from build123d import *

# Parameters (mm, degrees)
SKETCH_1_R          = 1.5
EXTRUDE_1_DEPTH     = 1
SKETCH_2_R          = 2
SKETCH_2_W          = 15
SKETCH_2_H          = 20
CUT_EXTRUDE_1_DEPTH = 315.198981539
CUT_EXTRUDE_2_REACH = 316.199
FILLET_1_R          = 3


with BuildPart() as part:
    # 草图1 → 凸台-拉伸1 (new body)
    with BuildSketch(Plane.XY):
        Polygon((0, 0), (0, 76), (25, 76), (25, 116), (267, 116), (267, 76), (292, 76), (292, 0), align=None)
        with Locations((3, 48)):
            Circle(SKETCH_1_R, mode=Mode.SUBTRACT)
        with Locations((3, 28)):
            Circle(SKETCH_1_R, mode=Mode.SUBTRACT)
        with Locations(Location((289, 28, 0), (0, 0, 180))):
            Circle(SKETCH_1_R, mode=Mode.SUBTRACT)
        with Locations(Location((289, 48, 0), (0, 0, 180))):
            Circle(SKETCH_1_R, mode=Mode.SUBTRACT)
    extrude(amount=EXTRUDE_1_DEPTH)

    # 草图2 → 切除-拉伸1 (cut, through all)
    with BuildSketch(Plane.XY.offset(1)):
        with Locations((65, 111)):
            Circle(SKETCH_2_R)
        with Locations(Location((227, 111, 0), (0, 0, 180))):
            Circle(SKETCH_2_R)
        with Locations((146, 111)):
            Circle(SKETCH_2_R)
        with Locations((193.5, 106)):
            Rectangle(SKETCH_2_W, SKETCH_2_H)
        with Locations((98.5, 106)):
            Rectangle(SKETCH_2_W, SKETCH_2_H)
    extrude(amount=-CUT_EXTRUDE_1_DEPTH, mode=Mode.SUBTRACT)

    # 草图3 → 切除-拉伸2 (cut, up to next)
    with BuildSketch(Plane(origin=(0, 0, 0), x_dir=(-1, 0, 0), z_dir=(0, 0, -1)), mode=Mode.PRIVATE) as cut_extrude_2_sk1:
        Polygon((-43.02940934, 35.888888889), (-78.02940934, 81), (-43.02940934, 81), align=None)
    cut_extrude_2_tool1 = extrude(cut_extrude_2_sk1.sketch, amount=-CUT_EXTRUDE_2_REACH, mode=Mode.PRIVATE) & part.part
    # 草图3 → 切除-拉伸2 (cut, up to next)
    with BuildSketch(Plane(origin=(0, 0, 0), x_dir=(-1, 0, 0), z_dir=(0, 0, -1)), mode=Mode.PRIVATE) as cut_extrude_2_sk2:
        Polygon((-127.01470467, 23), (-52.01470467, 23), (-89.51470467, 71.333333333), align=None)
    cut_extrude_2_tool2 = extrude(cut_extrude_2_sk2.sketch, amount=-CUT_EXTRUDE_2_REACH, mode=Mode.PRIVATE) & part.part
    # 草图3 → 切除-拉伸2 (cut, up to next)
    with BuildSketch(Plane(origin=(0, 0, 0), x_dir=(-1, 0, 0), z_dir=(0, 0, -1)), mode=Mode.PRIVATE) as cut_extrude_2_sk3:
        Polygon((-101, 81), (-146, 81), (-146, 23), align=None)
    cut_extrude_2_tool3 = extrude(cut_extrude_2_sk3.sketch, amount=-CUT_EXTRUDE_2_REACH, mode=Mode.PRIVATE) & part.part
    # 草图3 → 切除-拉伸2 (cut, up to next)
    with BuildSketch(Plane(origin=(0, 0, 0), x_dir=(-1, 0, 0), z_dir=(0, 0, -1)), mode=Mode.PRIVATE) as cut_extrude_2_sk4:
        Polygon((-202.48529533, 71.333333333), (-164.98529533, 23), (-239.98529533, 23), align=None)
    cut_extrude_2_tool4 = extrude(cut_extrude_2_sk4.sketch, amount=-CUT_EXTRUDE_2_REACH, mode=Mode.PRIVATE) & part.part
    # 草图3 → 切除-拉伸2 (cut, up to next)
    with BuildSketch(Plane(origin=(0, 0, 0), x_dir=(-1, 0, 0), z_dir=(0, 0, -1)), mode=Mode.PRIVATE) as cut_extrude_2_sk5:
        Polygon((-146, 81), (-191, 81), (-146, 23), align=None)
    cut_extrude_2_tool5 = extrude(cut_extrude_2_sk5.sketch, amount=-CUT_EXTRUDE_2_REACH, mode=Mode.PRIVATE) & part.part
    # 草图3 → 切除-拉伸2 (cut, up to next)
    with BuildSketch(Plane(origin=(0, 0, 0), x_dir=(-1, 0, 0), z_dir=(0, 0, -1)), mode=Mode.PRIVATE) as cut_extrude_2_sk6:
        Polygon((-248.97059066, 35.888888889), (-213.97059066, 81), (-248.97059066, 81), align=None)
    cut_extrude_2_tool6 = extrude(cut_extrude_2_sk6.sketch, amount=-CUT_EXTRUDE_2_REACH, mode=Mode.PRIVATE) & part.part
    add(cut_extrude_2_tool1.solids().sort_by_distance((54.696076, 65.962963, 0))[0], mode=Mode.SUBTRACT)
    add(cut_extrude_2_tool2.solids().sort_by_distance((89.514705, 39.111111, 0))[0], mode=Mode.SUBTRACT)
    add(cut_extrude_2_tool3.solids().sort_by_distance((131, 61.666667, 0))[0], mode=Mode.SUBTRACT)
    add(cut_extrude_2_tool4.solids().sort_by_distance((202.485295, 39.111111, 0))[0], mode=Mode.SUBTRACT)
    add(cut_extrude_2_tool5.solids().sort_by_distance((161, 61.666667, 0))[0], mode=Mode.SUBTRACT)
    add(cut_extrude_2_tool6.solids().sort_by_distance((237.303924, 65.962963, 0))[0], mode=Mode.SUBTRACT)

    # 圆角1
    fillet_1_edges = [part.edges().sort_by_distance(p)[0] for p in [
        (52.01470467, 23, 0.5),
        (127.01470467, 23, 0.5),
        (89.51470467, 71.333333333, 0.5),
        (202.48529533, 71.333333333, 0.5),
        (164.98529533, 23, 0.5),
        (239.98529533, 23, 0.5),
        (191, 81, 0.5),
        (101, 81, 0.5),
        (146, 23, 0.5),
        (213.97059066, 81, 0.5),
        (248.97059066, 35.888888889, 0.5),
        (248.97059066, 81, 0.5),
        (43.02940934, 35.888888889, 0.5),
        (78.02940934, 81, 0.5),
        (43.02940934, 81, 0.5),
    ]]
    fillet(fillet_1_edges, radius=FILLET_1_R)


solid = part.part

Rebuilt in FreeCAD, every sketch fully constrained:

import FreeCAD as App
import Part
import Sketcher

V = App.Vector
Q = App.Units.Quantity


def edges_at(feature, points):
    """Names of the edges that pass closest to the given points."""
    edges = feature.Shape.Edges
    near = lambda p: min(range(len(edges)), key=lambda i: edges[i].distToShape(Part.Vertex(*p))[0])
    return sorted({f"Edge{near(p) + 1}" for p in points})


def add_polygon(sketch, points):
    """Adds a closed chain of lines whose ends are joined by coincident constraints."""
    first, n = sketch.GeometryCount, len(points)
    for a, b in zip(points, points[1:] + points[:1]):
        sketch.addGeometry(Part.LineSegment(App.Vector(*a, 0), App.Vector(*b, 0)), False)
    for i in range(n):
        sketch.addConstraint(Sketcher.Constraint("Coincident", first + i, 2, first + (i + 1) % n, 1))

doc = App.newDocument("Part")
body = doc.addObject("PartDesign::Body", "Body")

# Sketch on XY plane
sketch1 = doc.addObject("Sketcher::SketchObject", "Sketch")
body.addObject(sketch1)
sketch1.AttachmentSupport = (doc.XY_Plane, [""])
sketch1.MapMode = "FlatFace"
add_polygon(sketch1, [(0, 76), (0, 0), (292, 0), (292, 76), (267, 76), (267, 116), (25, 116), (25, 76)])  # lines 0-7
sketch1.addGeometry(Part.Circle(V(289, 28, 0), V(0, 0, 1), 1.5), False)  # 8
sketch1.addGeometry(Part.Circle(V(3, 28, 0), V(0, 0, 1), 1.5), False)  # 9
sketch1.addGeometry(Part.Circle(V(289, 48, 0), V(0, 0, 1), 1.5), False)  # 10
sketch1.addGeometry(Part.Circle(V(3, 48, 0), V(0, 0, 1), 1.5), False)  # 11
sketch1.addConstraint(Sketcher.Constraint("Vertical", 0))
sketch1.addConstraint(Sketcher.Constraint("Horizontal", 1))
sketch1.addConstraint(Sketcher.Constraint("Vertical", 2))
sketch1.addConstraint(Sketcher.Constraint("Horizontal", 3))
sketch1.addConstraint(Sketcher.Constraint("Vertical", 4))
sketch1.addConstraint(Sketcher.Constraint("Horizontal", 5))
sketch1.addConstraint(Sketcher.Constraint("Vertical", 6))
sketch1.addConstraint(Sketcher.Constraint("Horizontal", 7))
sketch1.addConstraint(Sketcher.Constraint("Coincident", 0, 2, -1, 1))
sketch1.addConstraint(Sketcher.Constraint("Equal", 8, 9))
sketch1.addConstraint(Sketcher.Constraint("Equal", 9, 10))
sketch1.addConstraint(Sketcher.Constraint("Equal", 10, 11))
sketch1.addConstraint(Sketcher.Constraint("Horizontal", 8, 3, 9, 3))
sketch1.addConstraint(Sketcher.Constraint("Horizontal", 10, 3, 11, 3))
sketch1.addConstraint(Sketcher.Constraint("Horizontal", 3, 2, 6, 2))
sketch1.addConstraint(Sketcher.Constraint("Vertical", 8, 3, 10, 3))
sketch1.addConstraint(Sketcher.Constraint("Vertical", 9, 3, 11, 3))
sketch1.addConstraint(Sketcher.Constraint("Equal", 3, 7))
sketch1.addConstraint(Sketcher.Constraint("Diameter", 8, Q("3 mm")))
sketch1.addConstraint(Sketcher.Constraint("DistanceX", 1, 1, 1, 2, Q("292 mm")))
sketch1.addConstraint(Sketcher.Constraint("DistanceX", 3, 2, 3, 1, Q("25 mm")))
sketch1.addConstraint(Sketcher.Constraint("DistanceY", 0, 2, 0, 1, Q("76 mm")))
sketch1.addConstraint(Sketcher.Constraint("DistanceY", 4, 1, 4, 2, Q("40 mm")))
sketch1.addConstraint(Sketcher.Constraint("DistanceX", -1, 1, 8, 3, Q("289 mm")))
sketch1.addConstraint(Sketcher.Constraint("DistanceY", -1, 1, 8, 3, Q("28 mm")))
sketch1.addConstraint(Sketcher.Constraint("DistanceX", -1, 1, 9, 3, Q("3 mm")))
sketch1.addConstraint(Sketcher.Constraint("DistanceY", -1, 1, 10, 3, Q("48 mm")))
pad1 = doc.addObject("PartDesign::Pad", "Pad")
body.addObject(pad1)
pad1.Profile = sketch1
pad1.Length = 1

# Sketch on XY plane
sketch2 = doc.addObject("Sketcher::SketchObject", "Sketch001")
body.addObject(sketch2)
sketch2.AttachmentSupport = (doc.XY_Plane, [""])
sketch2.MapMode = "FlatFace"
sketch2.AttachmentOffset = App.Placement(V(0, 0, 1), App.Rotation())
sketch2.addGeometry(Part.Circle(V(65, 111, 0), V(0, 0, 1), 2), False)  # 0
sketch2.addGeometry(Part.Circle(V(227, 111, 0), V(0, 0, 1), 2), False)  # 1
sketch2.addGeometry(Part.Circle(V(146, 111, 0), V(0, 0, 1), 2), False)  # 2
add_polygon(sketch2, [(186, 116), (186, 96), (201, 96), (201, 116)])  # lines 3-6
add_polygon(sketch2, [(91, 116), (91, 96), (106, 96), (106, 116)])  # lines 7-10
sketch2.addConstraint(Sketcher.Constraint("Vertical", 3))
sketch2.addConstraint(Sketcher.Constraint("Horizontal", 4))
sketch2.addConstraint(Sketcher.Constraint("Vertical", 5))
sketch2.addConstraint(Sketcher.Constraint("Horizontal", 6))
sketch2.addConstraint(Sketcher.Constraint("Vertical", 7))
sketch2.addConstraint(Sketcher.Constraint("Horizontal", 8))
sketch2.addConstraint(Sketcher.Constraint("Vertical", 9))
sketch2.addConstraint(Sketcher.Constraint("Horizontal", 10))
sketch2.addConstraint(Sketcher.Constraint("Equal", 0, 1))
sketch2.addConstraint(Sketcher.Constraint("Equal", 1, 2))
sketch2.addConstraint(Sketcher.Constraint("Horizontal", 0, 3, 1, 3))
sketch2.addConstraint(Sketcher.Constraint("Horizontal", 1, 3, 2, 3))
sketch2.addConstraint(Sketcher.Constraint("Horizontal", 4, 2, 7, 2))
sketch2.addConstraint(Sketcher.Constraint("Horizontal", 6, 2, 9, 2))
sketch2.addConstraint(Sketcher.Constraint("Equal", 6, 8))
sketch2.addConstraint(Sketcher.Constraint("Diameter", 0, Q("4 mm")))
sketch2.addConstraint(Sketcher.Constraint("DistanceX", 4, 1, 4, 2, Q("15 mm")))
sketch2.addConstraint(Sketcher.Constraint("DistanceY", 3, 2, 3, 1, Q("20 mm")))
sketch2.addConstraint(Sketcher.Constraint("DistanceX", -1, 1, 0, 3, Q("65 mm")))
sketch2.addConstraint(Sketcher.Constraint("DistanceY", -1, 1, 0, 3, Q("111 mm")))
sketch2.addConstraint(Sketcher.Constraint("DistanceX", -1, 1, 1, 3, Q("227 mm")))
sketch2.addConstraint(Sketcher.Constraint("DistanceX", -1, 1, 2, 3, Q("146 mm")))
sketch2.addConstraint(Sketcher.Constraint("DistanceX", -1, 1, 3, 2, Q("186 mm")))
sketch2.addConstraint(Sketcher.Constraint("DistanceY", -1, 1, 3, 2, Q("96 mm")))
sketch2.addConstraint(Sketcher.Constraint("DistanceX", -1, 1, 7, 2, Q("91 mm")))
pocket1 = doc.addObject("PartDesign::Pocket", "Pocket")
body.addObject(pocket1)
pocket1.Profile = sketch2
pocket1.Type = "ThroughAll"

# Sketch on XY plane
sketch3 = doc.addObject("Sketcher::SketchObject", "Sketch002")
body.addObject(sketch3)
sketch3.AttachmentSupport = (doc.XY_Plane, [""])
sketch3.MapMode = "FlatFace"
add_polygon(sketch3, [(78, 81), (43, 36), (43, 81)])  # lines 0-2
sketch3.addConstraint(Sketcher.Constraint("Vertical", 1))
sketch3.addConstraint(Sketcher.Constraint("Horizontal", 2))
sketch3.addConstraint(Sketcher.Constraint("DistanceX", 2, 1, 2, 2, Q("35 mm")))
sketch3.addConstraint(Sketcher.Constraint("DistanceY", -1, 1, 1, 2, Q("81 mm")))
sketch3.addConstraint(Sketcher.Constraint("DistanceY", 1, 1, 1, 2, Q("45.111111 mm")))
sketch3.addConstraint(Sketcher.Constraint("DistanceX", -1, 1, 0, 2, Q("43.029409 mm")))
pocket2 = doc.addObject("PartDesign::Pocket", "Pocket001")
body.addObject(pocket2)
pocket2.Profile = sketch3
pocket2.Type = "UpToFirst"
pocket2.Reversed = True

# Sketch on XY plane
sketch4 = doc.addObject("Sketcher::SketchObject", "Sketch003")
body.addObject(sketch4)
sketch4.AttachmentSupport = (doc.XY_Plane, [""])
sketch4.MapMode = "FlatFace"
add_polygon(sketch4, [(127, 23), (52, 23), (90, 71)])  # lines 0-2
sketch4.addConstraint(Sketcher.Constraint("Horizontal", 0))
sketch4.addConstraint(Sketcher.Constraint("Equal", 1, 2))
sketch4.addConstraint(Sketcher.Constraint("DistanceX", 0, 2, 0, 1, Q("75 mm")))
sketch4.addConstraint(Sketcher.Constraint("DistanceY", -1, 1, 0, 2, Q("23 mm")))
sketch4.addConstraint(Sketcher.Constraint("Distance", 1, Q("61.174841 mm")))
sketch4.addConstraint(Sketcher.Constraint("DistanceX", -1, 1, 0, 2, Q("52.014705 mm")))
pocket3 = doc.addObject("PartDesign::Pocket", "Pocket002")
body.addObject(pocket3)
pocket3.Profile = sketch4
pocket3.Type = "UpToFirst"
pocket3.Reversed = True

# Sketch on XY plane
sketch5 = doc.addObject("Sketcher::SketchObject", "Sketch004")
body.addObject(sketch5)
sketch5.AttachmentSupport = (doc.XY_Plane, [""])
sketch5.MapMode = "FlatFace"
add_polygon(sketch5, [(101, 81), (146, 81), (146, 23)])  # lines 0-2
sketch5.addConstraint(Sketcher.Constraint("Horizontal", 0))
sketch5.addConstraint(Sketcher.Constraint("Vertical", 1))
sketch5.addConstraint(Sketcher.Constraint("DistanceX", 0, 1, 0, 2, Q("45 mm")))
sketch5.addConstraint(Sketcher.Constraint("DistanceY", 1, 2, 1, 1, Q("58 mm")))
sketch5.addConstraint(Sketcher.Constraint("DistanceX", -1, 1, 0, 2, Q("146 mm")))
sketch5.addConstraint(Sketcher.Constraint("DistanceY", -1, 1, 0, 2, Q("81 mm")))
pocket4 = doc.addObject("PartDesign::Pocket", "Pocket003")
body.addObject(pocket4)
pocket4.Profile = sketch5
pocket4.Type = "UpToFirst"
pocket4.Reversed = True

# Sketch on XY plane
sketch6 = doc.addObject("Sketcher::SketchObject", "Sketch005")
body.addObject(sketch6)
sketch6.AttachmentSupport = (doc.XY_Plane, [""])
sketch6.MapMode = "FlatFace"
add_polygon(sketch6, [(165, 23), (202, 71), (240, 23)])  # lines 0-2
sketch6.addConstraint(Sketcher.Constraint("Horizontal", 2))
sketch6.addConstraint(Sketcher.Constraint("Equal", 0, 1))
sketch6.addConstraint(Sketcher.Constraint("DistanceX", 2, 2, 2, 1, Q("75 mm")))
sketch6.addConstraint(Sketcher.Constraint("DistanceY", -1, 1, 1, 2, Q("23 mm")))
sketch6.addConstraint(Sketcher.Constraint("Distance", 0, Q("61.174841 mm")))
sketch6.addConstraint(Sketcher.Constraint("DistanceX", -1, 1, 0, 2, Q("202.485295 mm")))
pocket5 = doc.addObject("PartDesign::Pocket", "Pocket004")
body.addObject(pocket5)
pocket5.Profile = sketch6
pocket5.Type = "UpToFirst"
pocket5.Reversed = True

# Sketch on XY plane
sketch7 = doc.addObject("Sketcher::SketchObject", "Sketch006")
body.addObject(sketch7)
sketch7.AttachmentSupport = (doc.XY_Plane, [""])
sketch7.MapMode = "FlatFace"
add_polygon(sketch7, [(146, 81), (191, 81), (146, 23)])  # lines 0-2
sketch7.addConstraint(Sketcher.Constraint("Horizontal", 0))
sketch7.addConstraint(Sketcher.Constraint("Vertical", 2))
sketch7.addConstraint(Sketcher.Constraint("DistanceX", 0, 1, 0, 2, Q("45 mm")))
sketch7.addConstraint(Sketcher.Constraint("DistanceY", 2, 1, 2, 2, Q("58 mm")))
sketch7.addConstraint(Sketcher.Constraint("DistanceX", -1, 1, 0, 2, Q("191 mm")))
sketch7.addConstraint(Sketcher.Constraint("DistanceY", -1, 1, 0, 2, Q("81 mm")))
pocket6 = doc.addObject("PartDesign::Pocket", "Pocket005")
body.addObject(pocket6)
pocket6.Profile = sketch7
pocket6.Type = "UpToFirst"
pocket6.Reversed = True

# Sketch on XY plane
sketch8 = doc.addObject("Sketcher::SketchObject", "Sketch007")
body.addObject(sketch8)
sketch8.AttachmentSupport = (doc.XY_Plane, [""])
sketch8.MapMode = "FlatFace"
add_polygon(sketch8, [(249, 36), (214, 81), (249, 81)])  # lines 0-2
sketch8.addConstraint(Sketcher.Constraint("Horizontal", 1))
sketch8.addConstraint(Sketcher.Constraint("Vertical", 2))
sketch8.addConstraint(Sketcher.Constraint("DistanceX", 1, 1, 1, 2, Q("35 mm")))
sketch8.addConstraint(Sketcher.Constraint("DistanceY", -1, 1, 0, 2, Q("81 mm")))
sketch8.addConstraint(Sketcher.Constraint("DistanceY", 2, 2, 2, 1, Q("45.111111 mm")))
sketch8.addConstraint(Sketcher.Constraint("DistanceX", -1, 1, 0, 2, Q("213.970591 mm")))
pocket7 = doc.addObject("PartDesign::Pocket", "Pocket006")
body.addObject(pocket7)
pocket7.Profile = sketch8
pocket7.Type = "UpToFirst"
pocket7.Reversed = True
doc.recompute()

fillet = doc.addObject("PartDesign::Fillet", "Fillet")
body.addObject(fillet)
fillet.Base = (pocket7, edges_at(pocket7, [
    (52.015, 23, 0.5),
    (127.015, 23, 0.5),
    (89.515, 71.333, 0.5),
    (202.485, 71.333, 0.5),
    (164.985, 23, 0.5),
    (239.985, 23, 0.5),
    (191, 81, 0.5),
    (101, 81, 0.5),
    (146, 23, 0.5),
    (213.971, 81, 0.5),
    (248.971, 35.889, 0.5),
    (248.971, 81, 0.5),
    (43.029, 35.889, 0.5),
    (78.029, 81, 0.5),
    (43.029, 81, 0.5),
]))
fillet.Radius = 3

doc.recompute()
